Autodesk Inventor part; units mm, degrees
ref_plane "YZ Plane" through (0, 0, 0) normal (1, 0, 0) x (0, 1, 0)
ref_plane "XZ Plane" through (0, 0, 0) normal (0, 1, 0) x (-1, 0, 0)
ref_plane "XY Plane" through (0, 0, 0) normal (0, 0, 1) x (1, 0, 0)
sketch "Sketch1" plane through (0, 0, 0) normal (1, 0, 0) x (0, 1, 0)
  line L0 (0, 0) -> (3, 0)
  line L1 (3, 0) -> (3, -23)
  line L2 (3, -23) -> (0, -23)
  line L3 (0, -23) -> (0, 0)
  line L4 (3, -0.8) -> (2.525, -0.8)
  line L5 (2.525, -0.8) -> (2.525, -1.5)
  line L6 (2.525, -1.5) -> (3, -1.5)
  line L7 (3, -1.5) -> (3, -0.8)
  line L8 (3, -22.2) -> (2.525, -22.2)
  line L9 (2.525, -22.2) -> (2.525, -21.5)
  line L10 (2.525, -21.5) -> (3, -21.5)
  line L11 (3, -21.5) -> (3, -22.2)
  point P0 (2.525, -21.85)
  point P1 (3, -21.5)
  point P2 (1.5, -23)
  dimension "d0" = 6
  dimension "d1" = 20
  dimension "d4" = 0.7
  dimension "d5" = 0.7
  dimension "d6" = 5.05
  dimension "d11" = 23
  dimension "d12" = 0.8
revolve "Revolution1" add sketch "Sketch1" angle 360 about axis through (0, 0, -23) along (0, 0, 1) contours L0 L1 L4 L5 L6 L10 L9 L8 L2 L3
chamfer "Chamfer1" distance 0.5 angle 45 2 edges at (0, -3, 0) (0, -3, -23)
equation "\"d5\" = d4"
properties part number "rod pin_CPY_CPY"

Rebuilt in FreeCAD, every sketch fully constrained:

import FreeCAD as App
import Part
import Sketcher

V = App.Vector
Q = App.Units.Quantity


def edges_at(feature, points):
    """Names of the edges that pass closest to the given points."""
    edges = feature.Shape.Edges
    near = lambda p: min(range(len(edges)), key=lambda i: edges[i].distToShape(Part.Vertex(*p))[0])
    return sorted({f"Edge{near(p) + 1}" for p in points})

doc = App.newDocument("Part")
params = doc.addObject("Spreadsheet::Sheet", "Params")
for row, (alias, value) in enumerate([
    ("sketch1_height", "23 mm"),
    ("sketch1_height2", "20 mm"),
    ("sketch1_height3", "0.8 mm"),
    ("sketch1_width", "3 mm"),
    ("revolution_angle", "360 deg"),
    ("chamfer_size", "0.5 mm"),
], start=1):
    params.set(f"A{row}", alias)
    params.set(f"B{row}", "=" + value)
    params.setAlias(f"B{row}", alias)

body = doc.addObject("PartDesign::Body", "Body")

# Sketch on YZ plane
sketch1 = doc.addObject("Sketcher::SketchObject", "Sketch")
body.addObject(sketch1)
sketch1.AttachmentSupport = (doc.YZ_Plane, [""])
sketch1.MapMode = "FlatFace"
sketch1.addGeometry(Part.LineSegment(V(3, 0, 0), V(0, 0, 0)), False)
sketch1.addGeometry(Part.LineSegment(V(0, 0, 0), V(0, -23, 0)), False)
sketch1.addGeometry(Part.LineSegment(V(0, -23, 0), V(3, -23, 0)), False)
sketch1.addGeometry(Part.LineSegment(V(3, -23, 0), V(3, -22.2, 0)), False)
sketch1.addGeometry(Part.LineSegment(V(3, -22.2, 0), V(2.52, -22.2, 0)), False)
sketch1.addGeometry(Part.LineSegment(V(2.52, -22.2, 0), V(2.52, -21.5, 0)), False)
sketch1.addGeometry(Part.LineSegment(V(2.52, -21.5, 0), V(3, -21.5, 0)), False)
sketch1.addGeometry(Part.LineSegment(V(3, -21.5, 0), V(3, -1.5, 0)), False)
sketch1.addGeometry(Part.LineSegment(V(3, -1.5, 0), V(2.52, -1.5, 0)), False)
sketch1.addGeometry(Part.LineSegment(V(2.52, -1.5, 0), V(2.52, -0.8, 0)), False)
sketch1.addGeometry(Part.LineSegment(V(2.52, -0.8, 0), V(3, -0.8, 0)), False)
sketch1.addGeometry(Part.LineSegment(V(3, -0.8, 0), V(3, 0, 0)), False)
sketch1.addConstraint(Sketcher.Constraint("Coincident", 0, 2, 1, 1))
sketch1.addConstraint(Sketcher.Constraint("Coincident", 1, 2, 2, 1))
sketch1.addConstraint(Sketcher.Constraint("Coincident", 2, 2, 3, 1))
sketch1.addConstraint(Sketcher.Constraint("Coincident", 3, 2, 4, 1))
sketch1.addConstraint(Sketcher.Constraint("Coincident", 4, 2, 5, 1))
sketch1.addConstraint(Sketcher.Constraint("Coincident", 5, 2, 6, 1))
sketch1.addConstraint(Sketcher.Constraint("Coincident", 6, 2, 7, 1))
sketch1.addConstraint(Sketcher.Constraint("Coincident", 7, 2, 8, 1))
sketch1.addConstraint(Sketcher.Constraint("Coincident", 8, 2, 9, 1))
sketch1.addConstraint(Sketcher.Constraint("Coincident", 9, 2, 10, 1))
sketch1.addConstraint(Sketcher.Constraint("Coincident", 10, 2, 11, 1))
sketch1.addConstraint(Sketcher.Constraint("Coincident", 11, 2, 0, 1))
sketch1.addConstraint(Sketcher.Constraint("Horizontal", 0))
sketch1.addConstraint(Sketcher.Constraint("Vertical", 1))
sketch1.addConstraint(Sketcher.Constraint("Horizontal", 2))
sketch1.addConstraint(Sketcher.Constraint("Vertical", 3))
sketch1.addConstraint(Sketcher.Constraint("Horizontal", 4))
sketch1.addConstraint(Sketcher.Constraint("Vertical", 5))
sketch1.addConstraint(Sketcher.Constraint("Horizontal", 6))
sketch1.addConstraint(Sketcher.Constraint("Vertical", 7))
sketch1.addConstraint(Sketcher.Constraint("Horizontal", 8))
sketch1.addConstraint(Sketcher.Constraint("Vertical", 9))
sketch1.addConstraint(Sketcher.Constraint("Horizontal", 10))
sketch1.addConstraint(Sketcher.Constraint("Vertical", 11))
sketch1.addConstraint(Sketcher.Constraint("Coincident", 0, 2, -1, 1))
sketch1.addConstraint(Sketcher.Constraint("Vertical", 3, 2, 6, 2))
sketch1.addConstraint(Sketcher.Constraint("Vertical", 5, 2, 8, 2))
sketch1.addConstraint(Sketcher.Constraint("Vertical", 7, 2, 10, 2))
sketch1.addConstraint(Sketcher.Constraint("Equal", 5, 9))
sketch1.addConstraint(Sketcher.Constraint("Equal", 3, 11))
sketch1.addConstraint(Sketcher.Constraint("DistanceY", 1, 2, 1, 1, Q("23 mm")))
sketch1.addConstraint(Sketcher.Constraint("DistanceY", 7, 1, 7, 2, Q("20 mm")))
sketch1.addConstraint(Sketcher.Constraint("DistanceY", 3, 1, 3, 2, Q("0.8 mm")))
sketch1.addConstraint(Sketcher.Constraint("DistanceX", 0, 2, 0, 1, Q("3 mm")))
sketch1.addConstraint(Sketcher.Constraint("DistanceX", 4, 2, 4, 1, Q("0.475 mm")))
sketch1.setExpression("Constraints[30]", "Params.sketch1_height")
sketch1.setExpression("Constraints[31]", "Params.sketch1_height2")
sketch1.setExpression("Constraints[32]", "Params.sketch1_height3")
sketch1.setExpression("Constraints[33]", "Params.sketch1_width")
revolution = doc.addObject("PartDesign::Revolution", "Revolution")
body.addObject(revolution)
revolution.Profile = sketch1
revolution.ReferenceAxis = (sketch1, ["V_Axis"])
revolution.setExpression("Angle", "Params.revolution_angle")
doc.recompute()

chamfer = doc.addObject("PartDesign::Chamfer", "Chamfer")
body.addObject(chamfer)
chamfer.Base = (revolution, edges_at(revolution, [(0, -3, 0), (0, -3, -23)]))
chamfer.setExpression("Size", "Params.chamfer_size")

doc.recompute()
